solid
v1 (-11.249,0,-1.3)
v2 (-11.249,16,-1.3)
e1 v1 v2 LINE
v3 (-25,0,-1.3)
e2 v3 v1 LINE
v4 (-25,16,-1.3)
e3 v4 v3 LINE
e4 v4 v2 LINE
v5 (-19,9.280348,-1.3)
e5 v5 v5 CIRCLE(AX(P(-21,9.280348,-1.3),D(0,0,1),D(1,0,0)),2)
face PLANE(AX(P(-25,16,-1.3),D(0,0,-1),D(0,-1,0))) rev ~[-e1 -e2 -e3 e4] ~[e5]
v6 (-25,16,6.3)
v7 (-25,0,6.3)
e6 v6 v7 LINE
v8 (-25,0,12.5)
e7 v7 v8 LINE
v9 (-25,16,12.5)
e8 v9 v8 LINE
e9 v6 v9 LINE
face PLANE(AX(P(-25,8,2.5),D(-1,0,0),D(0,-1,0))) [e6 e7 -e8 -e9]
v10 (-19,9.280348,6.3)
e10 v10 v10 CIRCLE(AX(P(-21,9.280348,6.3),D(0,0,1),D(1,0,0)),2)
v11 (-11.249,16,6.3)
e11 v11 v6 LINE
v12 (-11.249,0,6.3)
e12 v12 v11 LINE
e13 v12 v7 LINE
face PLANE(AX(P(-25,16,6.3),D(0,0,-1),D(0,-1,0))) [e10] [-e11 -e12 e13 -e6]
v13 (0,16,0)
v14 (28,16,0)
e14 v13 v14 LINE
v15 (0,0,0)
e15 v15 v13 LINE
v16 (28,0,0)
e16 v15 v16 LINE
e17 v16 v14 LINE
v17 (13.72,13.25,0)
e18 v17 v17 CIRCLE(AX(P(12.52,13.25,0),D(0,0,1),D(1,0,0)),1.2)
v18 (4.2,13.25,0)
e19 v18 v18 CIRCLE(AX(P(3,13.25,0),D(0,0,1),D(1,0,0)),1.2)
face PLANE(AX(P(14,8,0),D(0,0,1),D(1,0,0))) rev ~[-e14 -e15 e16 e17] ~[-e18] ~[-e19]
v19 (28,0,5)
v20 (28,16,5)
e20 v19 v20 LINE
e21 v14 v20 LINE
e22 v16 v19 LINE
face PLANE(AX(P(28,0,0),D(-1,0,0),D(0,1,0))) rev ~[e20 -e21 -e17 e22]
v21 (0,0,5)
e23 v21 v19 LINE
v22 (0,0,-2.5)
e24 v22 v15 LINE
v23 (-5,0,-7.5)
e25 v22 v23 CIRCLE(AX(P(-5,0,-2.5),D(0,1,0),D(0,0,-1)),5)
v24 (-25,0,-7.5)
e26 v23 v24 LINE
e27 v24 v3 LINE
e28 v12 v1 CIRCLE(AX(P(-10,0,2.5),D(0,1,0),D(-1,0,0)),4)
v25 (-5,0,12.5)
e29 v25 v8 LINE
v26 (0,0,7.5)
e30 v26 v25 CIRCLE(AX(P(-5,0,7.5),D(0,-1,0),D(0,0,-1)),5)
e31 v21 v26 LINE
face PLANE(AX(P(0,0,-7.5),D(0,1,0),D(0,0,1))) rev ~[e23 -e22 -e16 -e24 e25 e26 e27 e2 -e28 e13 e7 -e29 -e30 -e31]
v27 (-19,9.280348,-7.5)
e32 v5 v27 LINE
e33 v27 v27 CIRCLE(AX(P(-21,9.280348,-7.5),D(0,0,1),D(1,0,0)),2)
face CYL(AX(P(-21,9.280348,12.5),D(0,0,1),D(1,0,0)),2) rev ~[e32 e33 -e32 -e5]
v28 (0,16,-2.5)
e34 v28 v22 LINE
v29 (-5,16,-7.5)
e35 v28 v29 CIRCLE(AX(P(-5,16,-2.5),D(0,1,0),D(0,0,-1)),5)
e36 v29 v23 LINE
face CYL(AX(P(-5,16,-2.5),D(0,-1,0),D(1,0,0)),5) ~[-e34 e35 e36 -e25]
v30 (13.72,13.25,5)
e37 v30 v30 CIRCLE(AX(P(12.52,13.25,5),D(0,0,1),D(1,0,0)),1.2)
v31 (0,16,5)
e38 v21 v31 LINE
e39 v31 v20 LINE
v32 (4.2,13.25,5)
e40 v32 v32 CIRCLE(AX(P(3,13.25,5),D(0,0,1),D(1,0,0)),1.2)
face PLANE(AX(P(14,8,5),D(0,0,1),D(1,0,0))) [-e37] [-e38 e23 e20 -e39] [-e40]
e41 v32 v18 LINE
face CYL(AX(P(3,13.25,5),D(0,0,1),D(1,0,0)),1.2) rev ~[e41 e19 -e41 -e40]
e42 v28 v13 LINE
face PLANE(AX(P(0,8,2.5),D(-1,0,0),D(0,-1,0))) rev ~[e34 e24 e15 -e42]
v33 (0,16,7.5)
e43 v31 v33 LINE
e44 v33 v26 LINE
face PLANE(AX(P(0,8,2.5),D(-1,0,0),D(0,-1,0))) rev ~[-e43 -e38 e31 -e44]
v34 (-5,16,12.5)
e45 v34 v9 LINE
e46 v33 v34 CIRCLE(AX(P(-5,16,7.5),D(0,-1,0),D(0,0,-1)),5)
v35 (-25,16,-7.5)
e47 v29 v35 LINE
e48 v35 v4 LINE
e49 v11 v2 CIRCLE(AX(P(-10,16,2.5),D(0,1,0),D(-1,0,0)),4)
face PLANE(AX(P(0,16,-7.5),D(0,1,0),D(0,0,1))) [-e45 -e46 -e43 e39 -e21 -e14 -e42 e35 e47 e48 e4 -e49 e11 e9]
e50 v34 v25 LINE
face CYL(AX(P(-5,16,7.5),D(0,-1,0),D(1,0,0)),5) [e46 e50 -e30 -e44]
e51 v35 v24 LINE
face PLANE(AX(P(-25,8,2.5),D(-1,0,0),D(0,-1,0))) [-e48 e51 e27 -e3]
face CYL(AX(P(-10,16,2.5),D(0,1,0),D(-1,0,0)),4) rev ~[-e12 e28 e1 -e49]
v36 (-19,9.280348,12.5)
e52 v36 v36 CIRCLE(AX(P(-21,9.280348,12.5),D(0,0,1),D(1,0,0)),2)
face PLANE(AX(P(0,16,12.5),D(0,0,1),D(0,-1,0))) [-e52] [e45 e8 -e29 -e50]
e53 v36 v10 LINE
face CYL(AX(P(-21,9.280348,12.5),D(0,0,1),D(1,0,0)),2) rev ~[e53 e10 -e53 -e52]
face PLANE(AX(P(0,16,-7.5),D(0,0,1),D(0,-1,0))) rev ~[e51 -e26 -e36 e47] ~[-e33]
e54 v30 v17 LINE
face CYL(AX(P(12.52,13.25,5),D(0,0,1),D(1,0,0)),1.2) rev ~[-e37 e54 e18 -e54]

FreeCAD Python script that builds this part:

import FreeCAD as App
import Part
import Sketcher

V = App.Vector


def edges_at(feature, points):
    """Names of the edges that pass closest to the given points."""
    edges = feature.Shape.Edges
    near = lambda p: min(range(len(edges)), key=lambda i: edges[i].distToShape(Part.Vertex(*p))[0])
    return sorted({f"Edge{near(p) + 1}" for p in points})

doc = App.newDocument("Part")
body = doc.addObject("PartDesign::Body", "Body")

sketch1 = body.newObject("Sketcher::SketchObject", "Sketch")
sketch1.AttachmentSupport = (doc.getObject("XY_Plane"), [""])
sketch1.MapMode = "FlatFace"
sketch1.addGeometry([
    Part.LineSegment(V(0, 16, 0), V(0, 0, 0)),
    Part.LineSegment(V(0, 0, 0), V(28, 0, 0)),
    Part.LineSegment(V(28, 0, 0), V(28, 16, 0)),
    Part.LineSegment(V(28, 16, 0), V(0, 16, 0)),
], False)
sketch1.addConstraint([
    Sketcher.Constraint("Coincident", 0, 2, 1, 1),
    Sketcher.Constraint("Coincident", 1, 2, 2, 1),
    Sketcher.Constraint("Coincident", 2, 2, 3, 1),
    Sketcher.Constraint("Coincident", 3, 2, 0, 1),
    Sketcher.Constraint("Vertical", 0),
    Sketcher.Constraint("Horizontal", 1),
    Sketcher.Constraint("Vertical", 2),
    Sketcher.Constraint("Horizontal", 3),
    Sketcher.Constraint("Coincident", 0, 2, -1, 1),
    Sketcher.Constraint("DistanceX", 1, 1, 1, 2, 28.0),
    Sketcher.Constraint("DistanceY", 0, 2, 0, 1, 16.0),
])
pad1 = body.newObject("PartDesign::Pad", "Pad")
pad1.Profile = sketch1
pad1.Length = 5

sketch2 = body.newObject("Sketcher::SketchObject", "Sketch001")
sketch2.AttachmentSupport = (doc.getObject("XY_Plane"), [""])
sketch2.MapMode = "FlatFace"
sketch2.AttachmentOffset = App.Placement(V(0, 0, 5), App.Rotation())
sketch2.addGeometry([
    Part.Circle(V(12.52, 13.25, 0), V(0, 0, 1), 1.2),
    Part.Circle(V(3, 13.25, 0), V(0, 0, 1), 1.2),
], False)
sketch2.addConstraint([
    Sketcher.Constraint("Equal", 0, 1),
    Sketcher.Constraint("Horizontal", 0, 3, 1, 3),
    Sketcher.Constraint("Diameter", 0, 2.4),
    Sketcher.Constraint("DistanceX", -1, 1, 1, 3, 3.0),
    Sketcher.Constraint("DistanceX", -1, 1, 0, 3, 12.52),
    Sketcher.Constraint("DistanceY", -1, 1, 0, 3, 13.25),
])
pocket1 = body.newObject("PartDesign::Pocket", "Pocket")
pocket1.Profile = sketch2
pocket1.Type = "ThroughAll"

sketch3 = body.newObject("Sketcher::SketchObject", "Sketch002")
sketch3.AttachmentSupport = (doc.getObject("YZ_Plane"), [""])
sketch3.MapMode = "FlatFace"
sketch3.addGeometry([
    Part.LineSegment(V(16, 12.5, 0), V(16, -7.5, 0)),
    Part.LineSegment(V(16, -7.5, 0), V(0, -7.5, 0)),
    Part.LineSegment(V(0, -7.5, 0), V(0, 12.5, 0)),
    Part.LineSegment(V(0, 12.5, 0), V(16, 12.5, 0)),
], False)
sketch3.addConstraint([
    Sketcher.Constraint("Coincident", 0, 2, 1, 1),
    Sketcher.Constraint("Coincident", 1, 2, 2, 1),
    Sketcher.Constraint("Coincident", 2, 2, 3, 1),
    Sketcher.Constraint("Coincident", 3, 2, 0, 1),
    Sketcher.Constraint("Vertical", 0),
    Sketcher.Constraint("Horizontal", 1),
    Sketcher.Constraint("Vertical", 2),
    Sketcher.Constraint("Horizontal", 3),
    Sketcher.Constraint("PointOnObject", 1, 2, -2),
    Sketcher.Constraint("DistanceX", 1, 2, 1, 1, 16.0),
    Sketcher.Constraint("DistanceY", 0, 2, 0, 1, 20.0),
    Sketcher.Constraint("DistanceY", 0, 2, -1, 1, 7.5),
])
pad2 = body.newObject("PartDesign::Pad", "Pad001")
pad2.Profile = sketch3
pad2.Length = 25
pad2.Reversed = True

sketch4 = body.newObject("Sketcher::SketchObject", "Sketch003")
sketch4.AttachmentSupport = (doc.getObject("XZ_Plane"), [""])
sketch4.MapMode = "FlatFace"
sketch4.AttachmentOffset = App.Placement(V(0, 0, -16), App.Rotation())
sketch4.addGeometry(Part.Circle(V(-10, 2.5, 0), V(0, 0, 1), 4), False)
sketch4.addConstraint([
    Sketcher.Constraint("Diameter", 0, 8.0),
    Sketcher.Constraint("DistanceX", 0, 3, -1, 1, 10.0),
    Sketcher.Constraint("DistanceY", -1, 1, 0, 3, 2.5),
])
pocket2 = body.newObject("PartDesign::Pocket", "Pocket001")
pocket2.Profile = sketch4
pocket2.Type = "ThroughAll"
pocket2.Reversed = True

sketch5 = body.newObject("Sketcher::SketchObject", "Sketch004")
sketch5.AttachmentSupport = (doc.getObject("YZ_Plane"), [""])
sketch5.MapMode = "FlatFace"
sketch5.AttachmentOffset = App.Placement(V(0, 0, -25), App.Rotation())
sketch5.addGeometry([
    Part.LineSegment(V(16, 6.3, 0), V(16, -1.3, 0)),
    Part.LineSegment(V(16, -1.3, 0), V(0, -1.3, 0)),
    Part.LineSegment(V(0, -1.3, 0), V(0, 6.3, 0)),
    Part.LineSegment(V(0, 6.3, 0), V(16, 6.3, 0)),
], False)
sketch5.addConstraint([
    Sketcher.Constraint("Coincident", 0, 2, 1, 1),
    Sketcher.Constraint("Coincident", 1, 2, 2, 1),
    Sketcher.Constraint("Coincident", 2, 2, 3, 1),
    Sketcher.Constraint("Coincident", 3, 2, 0, 1),
    Sketcher.Constraint("Vertical", 0),
    Sketcher.Constraint("Horizontal", 1),
    Sketcher.Constraint("Vertical", 2),
    Sketcher.Constraint("Horizontal", 3),
    Sketcher.Constraint("PointOnObject", 1, 2, -2),
    Sketcher.Constraint("DistanceX", 1, 2, 1, 1, 16.0),
    Sketcher.Constraint("DistanceY", 0, 2, 0, 1, 7.6),
    Sketcher.Constraint("DistanceY", 0, 2, -1, 1, 1.3),
])
pocket3 = body.newObject("PartDesign::Pocket", "Pocket002")
pocket3.Profile = sketch5
pocket3.Length = 10
pocket3.Reversed = True

sketch6 = body.newObject("Sketcher::SketchObject", "Sketch005")
sketch6.AttachmentSupport = (doc.getObject("XY_Plane"), [""])
sketch6.MapMode = "FlatFace"
sketch6.AttachmentOffset = App.Placement(V(0, 0, 12.5), App.Rotation())
sketch6.addGeometry(Part.Circle(V(-21, 9.280348, 0), V(0, 0, 1), 2), False)
sketch6.addConstraint([
    Sketcher.Constraint("Diameter", 0, 4.0),
    Sketcher.Constraint("DistanceX", 0, 3, -1, 1, 21.0),
    Sketcher.Constraint("DistanceY", -1, 1, 0, 3, 9.280348),
])
pocket4 = body.newObject("PartDesign::Pocket", "Pocket003")
pocket4.Profile = sketch6
pocket4.Type = "ThroughAll"

sketch7 = body.newObject("Sketcher::SketchObject", "Sketch006")
sketch7.AttachmentSupport = (doc.getObject("YZ_Plane"), [""])
sketch7.MapMode = "FlatFace"
sketch7.AttachmentOffset = App.Placement(V(0, 0, -25), App.Rotation())
sketch7.addGeometry([
    Part.LineSegment(V(16, 6.3, 0), V(16, -1.3, 0)),
    Part.LineSegment(V(16, -1.3, 0), V(0, -1.3, 0)),
    Part.LineSegment(V(0, -1.3, 0), V(0, 6.3, 0)),
    Part.LineSegment(V(0, 6.3, 0), V(16, 6.3, 0)),
], False)
sketch7.addConstraint([
    Sketcher.Constraint("Coincident", 0, 2, 1, 1),
    Sketcher.Constraint("Coincident", 1, 2, 2, 1),
    Sketcher.Constraint("Coincident", 2, 2, 3, 1),
    Sketcher.Constraint("Coincident", 3, 2, 0, 1),
    Sketcher.Constraint("Vertical", 0),
    Sketcher.Constraint("Horizontal", 1),
    Sketcher.Constraint("Vertical", 2),
    Sketcher.Constraint("Horizontal", 3),
    Sketcher.Constraint("PointOnObject", 1, 2, -2),
    Sketcher.Constraint("DistanceX", 1, 2, 1, 1, 16.0),
    Sketcher.Constraint("DistanceY", 0, 2, 0, 1, 7.6),
    Sketcher.Constraint("DistanceY", 0, 2, -1, 1, 1.3),
])
pocket5 = body.newObject("PartDesign::Pocket", "Pocket004")
pocket5.Profile = sketch7
pocket5.Length = 15
pocket5.Reversed = True
doc.recompute()

fillet = body.newObject("PartDesign::Fillet", "Fillet")
fillet.Base = (pocket5, edges_at(pocket5, [(0, 8, 12.5)]))
fillet.Radius = 5
doc.recompute()

fillet2 = body.newObject("PartDesign::Fillet", "Fillet001")
fillet2.Base = (fillet, edges_at(fillet, [(0, 8, -7.5)]))
fillet2.Radius = 5

doc.recompute()
